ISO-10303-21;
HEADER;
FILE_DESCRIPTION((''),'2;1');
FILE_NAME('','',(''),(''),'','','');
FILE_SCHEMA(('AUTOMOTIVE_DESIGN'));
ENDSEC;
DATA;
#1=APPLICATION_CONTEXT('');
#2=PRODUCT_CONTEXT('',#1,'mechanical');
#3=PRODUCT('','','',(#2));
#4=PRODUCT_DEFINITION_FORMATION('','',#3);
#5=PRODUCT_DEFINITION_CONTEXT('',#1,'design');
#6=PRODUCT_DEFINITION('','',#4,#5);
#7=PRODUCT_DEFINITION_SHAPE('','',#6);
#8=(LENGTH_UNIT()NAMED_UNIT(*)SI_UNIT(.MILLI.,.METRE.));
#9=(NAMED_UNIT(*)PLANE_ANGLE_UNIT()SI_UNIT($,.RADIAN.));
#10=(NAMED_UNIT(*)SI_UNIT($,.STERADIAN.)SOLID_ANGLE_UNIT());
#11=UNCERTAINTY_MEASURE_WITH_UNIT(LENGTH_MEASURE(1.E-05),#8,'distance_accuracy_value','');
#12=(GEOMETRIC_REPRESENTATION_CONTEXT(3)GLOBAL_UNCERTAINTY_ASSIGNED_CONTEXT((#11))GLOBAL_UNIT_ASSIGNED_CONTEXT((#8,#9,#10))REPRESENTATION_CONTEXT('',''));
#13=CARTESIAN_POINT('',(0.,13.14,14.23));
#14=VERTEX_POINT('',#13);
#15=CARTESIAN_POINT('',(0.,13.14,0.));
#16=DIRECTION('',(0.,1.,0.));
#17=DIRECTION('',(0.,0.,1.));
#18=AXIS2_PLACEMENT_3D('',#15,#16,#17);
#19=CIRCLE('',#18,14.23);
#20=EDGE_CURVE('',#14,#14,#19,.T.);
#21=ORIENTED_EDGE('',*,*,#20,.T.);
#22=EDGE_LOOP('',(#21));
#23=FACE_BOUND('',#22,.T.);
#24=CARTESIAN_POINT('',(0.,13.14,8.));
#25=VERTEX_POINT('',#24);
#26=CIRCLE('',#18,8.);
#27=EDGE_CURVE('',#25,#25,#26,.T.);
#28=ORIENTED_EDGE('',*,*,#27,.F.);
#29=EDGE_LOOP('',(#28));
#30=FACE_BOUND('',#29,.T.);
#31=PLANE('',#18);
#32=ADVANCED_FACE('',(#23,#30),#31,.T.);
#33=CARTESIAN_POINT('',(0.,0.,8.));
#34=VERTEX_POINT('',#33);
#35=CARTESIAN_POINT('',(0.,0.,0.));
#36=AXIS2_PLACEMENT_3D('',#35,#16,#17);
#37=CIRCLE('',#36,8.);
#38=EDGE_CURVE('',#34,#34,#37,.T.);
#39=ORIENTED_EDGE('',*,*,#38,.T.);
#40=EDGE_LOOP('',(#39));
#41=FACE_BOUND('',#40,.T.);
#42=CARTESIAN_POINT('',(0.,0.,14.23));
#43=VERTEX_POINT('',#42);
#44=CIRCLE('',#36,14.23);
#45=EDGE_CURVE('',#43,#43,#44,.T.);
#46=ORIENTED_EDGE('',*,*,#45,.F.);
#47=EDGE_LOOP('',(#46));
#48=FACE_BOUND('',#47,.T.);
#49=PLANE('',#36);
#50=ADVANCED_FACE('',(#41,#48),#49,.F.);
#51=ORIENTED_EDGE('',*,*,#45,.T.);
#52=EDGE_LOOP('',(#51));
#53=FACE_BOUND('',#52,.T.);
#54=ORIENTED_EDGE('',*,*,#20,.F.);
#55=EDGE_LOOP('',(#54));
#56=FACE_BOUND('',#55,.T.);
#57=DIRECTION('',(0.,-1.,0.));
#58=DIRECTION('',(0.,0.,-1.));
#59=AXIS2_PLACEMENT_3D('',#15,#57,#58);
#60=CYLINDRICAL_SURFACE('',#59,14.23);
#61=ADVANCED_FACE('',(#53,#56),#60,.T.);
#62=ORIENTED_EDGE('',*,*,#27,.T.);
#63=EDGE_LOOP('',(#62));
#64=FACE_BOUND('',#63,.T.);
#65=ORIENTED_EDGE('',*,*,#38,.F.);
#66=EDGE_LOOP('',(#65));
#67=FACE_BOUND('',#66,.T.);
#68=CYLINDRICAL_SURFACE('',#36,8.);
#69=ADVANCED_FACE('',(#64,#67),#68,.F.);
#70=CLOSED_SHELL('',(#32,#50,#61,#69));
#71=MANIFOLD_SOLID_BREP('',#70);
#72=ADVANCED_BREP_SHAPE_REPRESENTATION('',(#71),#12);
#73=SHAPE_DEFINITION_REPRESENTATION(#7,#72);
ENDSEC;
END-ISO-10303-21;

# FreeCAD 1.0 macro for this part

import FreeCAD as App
import Part
import Sketcher
from FreeCAD import Vector
Q = App.Units.Quantity

doc = App.newDocument("Part")
params = doc.addObject("Spreadsheet::Sheet", "Params")
for row, (alias, value) in enumerate([
    ("sketch1_diameter", "28.46 mm"),
    ("pad1_length", "13.14 mm"),
    ("sketch2_diameter", "16 mm"),
    ("pocket1_length", "13.14 mm"),
], start=1):
    params.set(f"A{row}", alias)
    params.set(f"B{row}", "=" + value)
    params.setAlias(f"B{row}", alias)

body = doc.addObject("PartDesign::Body", "Body")

# Sketch on XZ plane
sketch1 = body.newObject("Sketcher::SketchObject", "Sketch")
sketch1.AttachmentSupport = (doc.getObject("XZ_Plane"), [""])
sketch1.MapMode = "FlatFace"
sketch1.addGeometry(Part.Circle(Vector(0, 0, 0), Vector(0, 0, 1), 14), False)
sketch1.addConstraint(Sketcher.Constraint("Coincident", 0, 3, -1, 1))
sketch1.addConstraint(Sketcher.Constraint("Diameter", 0, Q("28.46 mm")))
sketch1.setExpression("Constraints[1]", "Params.sketch1_diameter")
pad1 = body.newObject("PartDesign::Pad", "Pad")
pad1.Profile = sketch1
pad1.setExpression("Length", "Params.pad1_length")
pad1.Reversed = True

# Sketch on XZ plane
sketch2 = body.newObject("Sketcher::SketchObject", "Sketch001")
sketch2.AttachmentSupport = (doc.getObject("XZ_Plane"), [""])
sketch2.MapMode = "FlatFace"
sketch2.AttachmentOffset = App.Placement(Vector(0, 0, -13.14), App.Rotation())
sketch2.addGeometry(Part.Circle(Vector(0, 0, 0), Vector(0, 0, 1), 8), False)
sketch2.addConstraint(Sketcher.Constraint("Coincident", 0, 3, -1, 1))
sketch2.addConstraint(Sketcher.Constraint("Diameter", 0, Q("16 mm")))
sketch2.setExpression("Constraints[1]", "Params.sketch2_diameter")
pocket1 = body.newObject("PartDesign::Pocket", "Pocket")
pocket1.Profile = sketch2
pocket1.setExpression("Length", "Params.pocket1_length")
pocket1.Reversed = True

doc.recompute()
